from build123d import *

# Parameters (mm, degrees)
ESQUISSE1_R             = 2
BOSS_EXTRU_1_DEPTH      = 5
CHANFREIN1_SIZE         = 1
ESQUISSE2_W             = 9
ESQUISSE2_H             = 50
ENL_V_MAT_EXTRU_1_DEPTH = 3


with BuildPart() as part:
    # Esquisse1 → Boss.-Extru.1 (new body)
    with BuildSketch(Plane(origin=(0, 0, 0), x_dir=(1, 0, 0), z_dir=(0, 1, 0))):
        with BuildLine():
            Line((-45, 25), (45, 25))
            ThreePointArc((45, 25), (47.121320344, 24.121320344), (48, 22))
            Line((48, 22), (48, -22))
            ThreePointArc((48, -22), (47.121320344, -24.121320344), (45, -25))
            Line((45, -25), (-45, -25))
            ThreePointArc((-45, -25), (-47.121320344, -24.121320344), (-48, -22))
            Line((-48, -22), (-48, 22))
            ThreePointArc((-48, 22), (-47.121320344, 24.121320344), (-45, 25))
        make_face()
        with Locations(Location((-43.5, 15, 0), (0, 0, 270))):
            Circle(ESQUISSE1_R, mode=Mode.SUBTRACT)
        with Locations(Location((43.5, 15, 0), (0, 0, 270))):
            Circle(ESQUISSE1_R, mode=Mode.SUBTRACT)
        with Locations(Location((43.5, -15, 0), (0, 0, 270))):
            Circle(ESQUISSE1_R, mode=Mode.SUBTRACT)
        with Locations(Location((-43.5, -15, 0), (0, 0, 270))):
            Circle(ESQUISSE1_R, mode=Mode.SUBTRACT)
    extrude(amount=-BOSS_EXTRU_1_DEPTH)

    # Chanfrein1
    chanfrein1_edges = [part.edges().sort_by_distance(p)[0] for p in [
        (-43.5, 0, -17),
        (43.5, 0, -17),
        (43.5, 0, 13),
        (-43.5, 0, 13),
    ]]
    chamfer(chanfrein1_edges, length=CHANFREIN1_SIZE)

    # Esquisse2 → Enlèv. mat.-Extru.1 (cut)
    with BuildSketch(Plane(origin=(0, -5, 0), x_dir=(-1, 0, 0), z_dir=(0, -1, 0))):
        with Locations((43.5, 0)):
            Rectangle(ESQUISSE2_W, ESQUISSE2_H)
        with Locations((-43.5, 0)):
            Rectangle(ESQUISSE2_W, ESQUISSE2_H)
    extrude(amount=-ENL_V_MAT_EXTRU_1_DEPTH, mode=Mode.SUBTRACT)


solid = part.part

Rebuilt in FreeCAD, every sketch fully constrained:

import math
import FreeCAD as App
import Part
import Sketcher


def edges_at(feature, points):
    """Names of the edges that pass closest to the given points."""
    edges = feature.Shape.Edges
    near = lambda p: min(range(len(edges)), key=lambda i: edges[i].distToShape(Part.Vertex(*p))[0])
    return sorted({f"Edge{near(p) + 1}" for p in points})


def add_polygon(sketch, points):
    """Adds a closed chain of lines whose ends are joined by coincident constraints."""
    first, n = sketch.GeometryCount, len(points)
    for a, b in zip(points, points[1:] + points[:1]):
        sketch.addGeometry(Part.LineSegment(App.Vector(*a, 0), App.Vector(*b, 0)), False)
    for i in range(n):
        sketch.addConstraint(Sketcher.Constraint("Coincident", first + i, 2, first + (i + 1) % n, 1))

doc = App.newDocument("Part")
body = doc.addObject("PartDesign::Body", "Body")

# Sketch on XZ plane
sketch1 = body.newObject("Sketcher::SketchObject", "Sketch")
sketch1.AttachmentSupport = (doc.getObject("XZ_Plane"), [""])
sketch1.MapMode = "FlatFace"
sketch1.addGeometry([
    Part.LineSegment(App.Vector(45, -25, 0), App.Vector(-45, -25, 0)),  # 0
    Part.ArcOfCircle(Part.Circle(App.Vector(-45, -22, 0), App.Vector(0, 0, 1), 3), math.radians(180), math.radians(270)),  # 1
    Part.LineSegment(App.Vector(-48, -22, 0), App.Vector(-48, 22, 0)),  # 2
    Part.ArcOfCircle(Part.Circle(App.Vector(-45, 22, 0), App.Vector(0, 0, 1), 3), math.radians(90), math.radians(180)),  # 3
    Part.LineSegment(App.Vector(-45, 25, 0), App.Vector(45, 25, 0)),  # 4
    Part.ArcOfCircle(Part.Circle(App.Vector(45, 22, 0), App.Vector(0, 0, 1), 3), math.radians(0), math.radians(90)),  # 5
    Part.LineSegment(App.Vector(48, 22, 0), App.Vector(48, -22, 0)),  # 6
    Part.ArcOfCircle(Part.Circle(App.Vector(45, -22, 0), App.Vector(0, 0, 1), 3), math.radians(-90), math.radians(0)),  # 7
    Part.Circle(App.Vector(43.5, 15, 0), App.Vector(0, 0, 1), 2),  # 8
    Part.Circle(App.Vector(-43.5, 15, 0), App.Vector(0, 0, 1), 2),  # 9
    Part.Circle(App.Vector(43.5, -15, 0), App.Vector(0, 0, 1), 2),  # 10
    Part.Circle(App.Vector(-43.5, -15, 0), App.Vector(0, 0, 1), 2),  # 11
], False)
sketch1.addConstraint([
    Sketcher.Constraint("Tangent", 0, 2, 1, 2),
    Sketcher.Constraint("Tangent", 1, 1, 2, 1),
    Sketcher.Constraint("Tangent", 2, 2, 3, 2),
    Sketcher.Constraint("Tangent", 3, 1, 4, 1),
    Sketcher.Constraint("Tangent", 4, 2, 5, 2),
    Sketcher.Constraint("Tangent", 5, 1, 6, 1),
    Sketcher.Constraint("Tangent", 6, 2, 7, 2),
    Sketcher.Constraint("Tangent", 7, 1, 0, 1),
    Sketcher.Constraint("Horizontal", 0),
    Sketcher.Constraint("Vertical", 2),
    Sketcher.Constraint("Horizontal", 4),
    Sketcher.Constraint("Vertical", 6),
    Sketcher.Constraint("Equal", 1, 3),
    Sketcher.Constraint("Equal", 3, 5),
    Sketcher.Constraint("Equal", 5, 7),
    Sketcher.Constraint("Equal", 8, 9),
    Sketcher.Constraint("Equal", 9, 10),
    Sketcher.Constraint("Equal", 10, 11),
    Sketcher.Constraint("Symmetric", 1, 3, 5, 3, -1, 1),
    Sketcher.Constraint("Symmetric", 9, 3, 10, 3, -1, 1),
    Sketcher.Constraint("Symmetric", 8, 3, 11, 3, -1, 1),
    Sketcher.Constraint("Symmetric", 8, 3, 9, 3, -2),
    Sketcher.Constraint("Diameter", 8, 4.0),
    Sketcher.Constraint("Radius", 1, 3.0),
    Sketcher.Constraint("DistanceX", 0, 2, 0, 1, 90.0),
    Sketcher.Constraint("DistanceY", 2, 1, 2, 2, 44.0),
    Sketcher.Constraint("DistanceY", -1, 1, 8, 3, 15.0),
    Sketcher.Constraint("DistanceX", 9, 3, 8, 3, 87.0),
])
pad1 = body.newObject("PartDesign::Pad", "Pad")
pad1.Profile = sketch1
pad1.Length = 5
doc.recompute()

chamfer = body.newObject("PartDesign::Chamfer", "Chamfer")
chamfer.Base = (pad1, edges_at(pad1, [
    (-43.5, 0, -17),
    (43.5, 0, -17),
    (43.5, 0, 13),
    (-43.5, 0, 13),
]))
chamfer.Size = 1

# Sketch on XZ plane
sketch2 = body.newObject("Sketcher::SketchObject", "Sketch001")
sketch2.AttachmentSupport = (doc.getObject("XZ_Plane"), [""])
sketch2.MapMode = "FlatFace"
sketch2.AttachmentOffset = App.Placement(App.Vector(0, 0, 5), App.Rotation())
add_polygon(sketch2, [(-39, -25), (-39, 25), (-48, 25), (-48, -25)])  # lines 0-3
add_polygon(sketch2, [(48, -25), (48, 25), (39, 25), (39, -25)])  # lines 4-7
sketch2.addConstraint([
    Sketcher.Constraint("Vertical", 0),
    Sketcher.Constraint("Horizontal", 1),
    Sketcher.Constraint("Vertical", 2),
    Sketcher.Constraint("Horizontal", 3),
    Sketcher.Constraint("Vertical", 4),
    Sketcher.Constraint("Horizontal", 5),
    Sketcher.Constraint("Vertical", 6),
    Sketcher.Constraint("Horizontal", 7),
    Sketcher.Constraint("Symmetric", 2, 2, 4, 2, -1, 1),
    Sketcher.Constraint("Symmetric", 0, 2, 6, 2, -1, 1),
    Sketcher.Constraint("Horizontal", 1, 2, 4, 2),
    Sketcher.Constraint("DistanceX", 1, 2, 1, 1, 9.0),
    Sketcher.Constraint("DistanceY", 0, 1, 0, 2, 50.0),
    Sketcher.Constraint("DistanceX", 0, 2, -1, 1, 39.0),
])
pocket1 = body.newObject("PartDesign::Pocket", "Pocket")
pocket1.Profile = sketch2
pocket1.Length = 3

doc.recompute()
